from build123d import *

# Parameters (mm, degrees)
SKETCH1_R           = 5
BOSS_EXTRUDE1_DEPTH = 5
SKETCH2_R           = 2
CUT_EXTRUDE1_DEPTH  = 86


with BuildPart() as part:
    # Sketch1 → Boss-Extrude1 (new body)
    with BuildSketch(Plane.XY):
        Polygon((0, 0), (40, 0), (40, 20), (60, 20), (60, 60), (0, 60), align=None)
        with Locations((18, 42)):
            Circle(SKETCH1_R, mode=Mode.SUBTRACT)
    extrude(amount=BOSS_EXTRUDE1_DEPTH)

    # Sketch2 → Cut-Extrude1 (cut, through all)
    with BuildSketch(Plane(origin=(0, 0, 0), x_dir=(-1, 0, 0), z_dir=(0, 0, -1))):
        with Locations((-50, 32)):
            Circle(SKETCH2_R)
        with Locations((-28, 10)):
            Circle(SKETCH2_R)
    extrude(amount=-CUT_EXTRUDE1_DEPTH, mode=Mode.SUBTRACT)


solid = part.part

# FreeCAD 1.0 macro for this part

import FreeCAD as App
import Part
import Sketcher
from FreeCAD import Vector


def add_polygon(sketch, points):
    """Adds a closed chain of lines whose ends are joined by coincident constraints."""
    first, n = sketch.GeometryCount, len(points)
    for a, b in zip(points, points[1:] + points[:1]):
        sketch.addGeometry(Part.LineSegment(App.Vector(*a, 0), App.Vector(*b, 0)), False)
    for i in range(n):
        sketch.addConstraint(Sketcher.Constraint("Coincident", first + i, 2, first + (i + 1) % n, 1))

doc = App.newDocument("Part")
body = doc.addObject("PartDesign::Body", "Body")

# Sketch on XY plane
sketch1 = body.newObject("Sketcher::SketchObject", "Sketch")
sketch1.AttachmentSupport = (doc.getObject("XY_Plane"), [""])
sketch1.MapMode = "FlatFace"
add_polygon(sketch1, [(0, 0), (40, 0), (40, 20), (60, 20), (60, 60), (0, 60)])  # lines 0-5
sketch1.addGeometry(Part.Circle(Vector(18, 42, 0), Vector(0, 0, 1), 5), False)  # 6
sketch1.addConstraint(Sketcher.Constraint("Horizontal", 0))
sketch1.addConstraint(Sketcher.Constraint("Vertical", 1))
sketch1.addConstraint(Sketcher.Constraint("Horizontal", 2))
sketch1.addConstraint(Sketcher.Constraint("Vertical", 3))
sketch1.addConstraint(Sketcher.Constraint("Horizontal", 4))
sketch1.addConstraint(Sketcher.Constraint("Vertical", 5))
sketch1.addConstraint(Sketcher.Constraint("Coincident", 5, 2, -1, 1))
sketch1.addConstraint(Sketcher.Constraint("Equal", 2, 1))
sketch1.addConstraint(Sketcher.Constraint("Equal", 0, 3))
sketch1.addConstraint(Sketcher.Constraint("Diameter", 6, 10.0))
sketch1.addConstraint(Sketcher.Constraint("DistanceX", 0, 1, 0, 2, 40.0))
sketch1.addConstraint(Sketcher.Constraint("DistanceX", 2, 1, 2, 2, 20.0))
sketch1.addConstraint(Sketcher.Constraint("DistanceX", -1, 1, 6, 3, 18.0))
sketch1.addConstraint(Sketcher.Constraint("DistanceY", -1, 1, 6, 3, 42.0))
pad1 = body.newObject("PartDesign::Pad", "Pad")
pad1.Profile = sketch1
pad1.Length = 5

# Sketch on XY plane
sketch2 = body.newObject("Sketcher::SketchObject", "Sketch001")
sketch2.AttachmentSupport = (doc.getObject("XY_Plane"), [""])
sketch2.MapMode = "FlatFace"
sketch2.addGeometry(Part.Circle(Vector(50, 32, 0), Vector(0, 0, 1), 2), False)
sketch2.addGeometry(Part.Circle(Vector(28, 10, 0), Vector(0, 0, 1), 2), False)
sketch2.addConstraint(Sketcher.Constraint("Equal", 0, 1))
sketch2.addConstraint(Sketcher.Constraint("Diameter", 0, 4.0))
sketch2.addConstraint(Sketcher.Constraint("DistanceX", -1, 1, 0, 3, 50.0))
sketch2.addConstraint(Sketcher.Constraint("DistanceY", -1, 1, 0, 3, 32.0))
sketch2.addConstraint(Sketcher.Constraint("DistanceX", -1, 1, 1, 3, 28.0))
sketch2.addConstraint(Sketcher.Constraint("DistanceY", -1, 1, 1, 3, 10.0))
pocket1 = body.newObject("PartDesign::Pocket", "Pocket")
pocket1.Profile = sketch2
pocket1.Type = "ThroughAll"
pocket1.Reversed = True

doc.recompute()
